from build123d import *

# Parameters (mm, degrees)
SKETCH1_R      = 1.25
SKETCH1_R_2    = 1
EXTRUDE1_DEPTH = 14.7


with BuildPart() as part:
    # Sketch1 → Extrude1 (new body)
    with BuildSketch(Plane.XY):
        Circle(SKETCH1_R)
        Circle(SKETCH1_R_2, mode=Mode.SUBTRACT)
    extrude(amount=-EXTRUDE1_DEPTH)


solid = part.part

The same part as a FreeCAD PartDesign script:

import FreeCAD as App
import Part
import Sketcher

V = App.Vector
Q = App.Units.Quantity

doc = App.newDocument("Part")
body = doc.addObject("PartDesign::Body", "Body")

# Sketch on XY plane
sketch1 = doc.addObject("Sketcher::SketchObject", "Sketch")
body.addObject(sketch1)
sketch1.AttachmentSupport = (doc.XY_Plane, [""])
sketch1.MapMode = "FlatFace"
sketch1.addGeometry([
    Part.Circle(V(0, 0, 0), V(0, 0, 1), 1.2),
    Part.Circle(V(0, 0, 0), V(0, 0, 1), 1),
], False)
sketch1.addConstraint([
    Sketcher.Constraint("Coincident", 0, 3, -1, 1),
    Sketcher.Constraint("Coincident", 1, 3, -1, 1),
    Sketcher.Constraint("Diameter", 1, Q("2 mm")),
    Sketcher.Constraint("Diameter", 0, Q("2.5 mm")),
])
pad1 = doc.addObject("PartDesign::Pad", "Pad")
body.addObject(pad1)
pad1.Profile = sketch1
pad1.Length = 14.7
pad1.Reversed = True

doc.recompute()
